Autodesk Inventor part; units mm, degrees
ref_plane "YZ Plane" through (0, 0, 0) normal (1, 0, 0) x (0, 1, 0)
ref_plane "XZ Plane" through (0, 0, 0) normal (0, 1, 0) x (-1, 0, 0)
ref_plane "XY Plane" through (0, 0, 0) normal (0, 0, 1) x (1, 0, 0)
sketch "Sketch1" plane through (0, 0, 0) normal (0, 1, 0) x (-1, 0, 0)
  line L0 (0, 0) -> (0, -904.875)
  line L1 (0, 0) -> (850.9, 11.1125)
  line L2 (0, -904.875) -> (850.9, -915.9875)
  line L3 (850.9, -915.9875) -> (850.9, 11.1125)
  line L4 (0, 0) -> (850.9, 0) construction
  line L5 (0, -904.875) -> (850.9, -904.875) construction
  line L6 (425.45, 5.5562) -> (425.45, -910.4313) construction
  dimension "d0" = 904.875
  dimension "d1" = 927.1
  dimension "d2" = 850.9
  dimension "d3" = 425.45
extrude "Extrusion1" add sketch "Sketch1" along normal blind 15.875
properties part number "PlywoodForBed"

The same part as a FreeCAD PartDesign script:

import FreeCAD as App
import Part
import Sketcher

V = App.Vector
Q = App.Units.Quantity

doc = App.newDocument("Part")
params = doc.addObject("Spreadsheet::Sheet", "Params")
for row, (alias, value) in enumerate([
    ("sketch1_height", "36.5 in"),
    ("sketch1_height2", "35.625 in"),
    ("pad1_length", "0.625 in"),
], start=1):
    params.set(f"A{row}", alias)
    params.set(f"B{row}", "=" + value)
    params.setAlias(f"B{row}", alias)

body = doc.addObject("PartDesign::Body", "Body")

# Sketch on XZ plane
sketch1 = body.newObject("Sketcher::SketchObject", "Sketch")
sketch1.AttachmentSupport = (doc.getObject("XZ_Plane"), [""])
sketch1.MapMode = "FlatFace"
sketch1.addGeometry([
    Part.LineSegment(V(-851, 11, 0), V(0, 0, 0)),
    Part.LineSegment(V(0, 0, 0), V(0, -905, 0)),
    Part.LineSegment(V(0, -905, 0), V(-851, -916, 0)),
    Part.LineSegment(V(-851, -916, 0), V(-851, 11, 0)),
], False)
sketch1.addConstraint([
    Sketcher.Constraint("Coincident", 0, 2, 1, 1),
    Sketcher.Constraint("Coincident", 1, 2, 2, 1),
    Sketcher.Constraint("Coincident", 2, 2, 3, 1),
    Sketcher.Constraint("Coincident", 3, 2, 0, 1),
    Sketcher.Constraint("Vertical", 1),
    Sketcher.Constraint("Vertical", 3),
    Sketcher.Constraint("Coincident", 0, 2, -1, 1),
    Sketcher.Constraint("Equal", 0, 2),
    Sketcher.Constraint("DistanceY", 3, 1, 3, 2, Q("36.5 in")),
    Sketcher.Constraint("DistanceX", 2, 2, -1, 1, Q("33.5 in")),
    Sketcher.Constraint("DistanceY", 1, 2, 1, 1, Q("35.625 in")),
])
sketch1.setExpression("Constraints[8]", "Params.sketch1_height")
sketch1.setExpression("Constraints[10]", "Params.sketch1_height2")
pad1 = body.newObject("PartDesign::Pad", "Pad")
pad1.Profile = sketch1
pad1.setExpression("Length", "Params.pad1_length")
pad1.Reversed = True

doc.recompute()
